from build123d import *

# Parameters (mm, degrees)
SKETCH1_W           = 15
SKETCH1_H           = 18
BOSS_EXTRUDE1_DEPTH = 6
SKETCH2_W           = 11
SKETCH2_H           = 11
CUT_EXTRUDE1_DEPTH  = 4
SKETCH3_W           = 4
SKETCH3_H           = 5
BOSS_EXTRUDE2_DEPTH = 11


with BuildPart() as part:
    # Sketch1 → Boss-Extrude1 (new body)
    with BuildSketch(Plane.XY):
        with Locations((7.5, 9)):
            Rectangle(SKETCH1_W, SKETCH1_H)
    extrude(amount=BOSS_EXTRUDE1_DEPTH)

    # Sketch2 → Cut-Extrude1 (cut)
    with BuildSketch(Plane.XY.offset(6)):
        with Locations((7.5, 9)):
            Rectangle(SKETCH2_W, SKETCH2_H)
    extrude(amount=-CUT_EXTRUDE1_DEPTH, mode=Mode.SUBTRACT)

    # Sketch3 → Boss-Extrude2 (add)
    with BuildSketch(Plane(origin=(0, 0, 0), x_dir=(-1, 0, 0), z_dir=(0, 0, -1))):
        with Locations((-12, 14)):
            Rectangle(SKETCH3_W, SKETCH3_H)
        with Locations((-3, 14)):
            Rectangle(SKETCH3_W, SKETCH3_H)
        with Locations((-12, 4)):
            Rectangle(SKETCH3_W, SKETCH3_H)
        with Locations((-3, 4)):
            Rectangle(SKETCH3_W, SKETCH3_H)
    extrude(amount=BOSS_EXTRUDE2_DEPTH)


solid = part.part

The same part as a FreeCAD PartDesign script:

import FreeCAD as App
import Part
import Sketcher
Q = App.Units.Quantity


def add_polygon(sketch, points):
    """Adds a closed chain of lines whose ends are joined by coincident constraints."""
    first, n = sketch.GeometryCount, len(points)
    for a, b in zip(points, points[1:] + points[:1]):
        sketch.addGeometry(Part.LineSegment(App.Vector(*a, 0), App.Vector(*b, 0)), False)
    for i in range(n):
        sketch.addConstraint(Sketcher.Constraint("Coincident", first + i, 2, first + (i + 1) % n, 1))

doc = App.newDocument("Part")
body = doc.addObject("PartDesign::Body", "Body")

# Sketch on XY plane
sketch1 = body.newObject("Sketcher::SketchObject", "Sketch")
sketch1.AttachmentSupport = (doc.getObject("XY_Plane"), [""])
sketch1.MapMode = "FlatFace"
add_polygon(sketch1, [(0, 18), (0, 0), (15, 0), (15, 18)])  # lines 0-3
sketch1.addConstraint(Sketcher.Constraint("Vertical", 0))
sketch1.addConstraint(Sketcher.Constraint("Horizontal", 1))
sketch1.addConstraint(Sketcher.Constraint("Vertical", 2))
sketch1.addConstraint(Sketcher.Constraint("Horizontal", 3))
sketch1.addConstraint(Sketcher.Constraint("Coincident", 0, 2, -1, 1))
sketch1.addConstraint(Sketcher.Constraint("DistanceX", 1, 1, 1, 2, Q("15 mm")))
sketch1.addConstraint(Sketcher.Constraint("DistanceY", 0, 2, 0, 1, Q("18 mm")))
pad1 = body.newObject("PartDesign::Pad", "Pad")
pad1.Profile = sketch1
pad1.Length = 6

# Sketch on XY plane
sketch2 = body.newObject("Sketcher::SketchObject", "Sketch001")
sketch2.AttachmentSupport = (doc.getObject("XY_Plane"), [""])
sketch2.MapMode = "FlatFace"
sketch2.AttachmentOffset = App.Placement(App.Vector(0, 0, 6), App.Rotation())
add_polygon(sketch2, [(2, 14), (2, 4), (13, 4), (13, 14)])  # lines 0-3
sketch2.addConstraint(Sketcher.Constraint("Vertical", 0))
sketch2.addConstraint(Sketcher.Constraint("Horizontal", 1))
sketch2.addConstraint(Sketcher.Constraint("Vertical", 2))
sketch2.addConstraint(Sketcher.Constraint("Horizontal", 3))
sketch2.addConstraint(Sketcher.Constraint("Equal", 3, 0))
sketch2.addConstraint(Sketcher.Constraint("DistanceX", 1, 1, 1, 2, Q("11 mm")))
sketch2.addConstraint(Sketcher.Constraint("DistanceX", -1, 1, 0, 2, Q("2 mm")))
sketch2.addConstraint(Sketcher.Constraint("DistanceY", -1, 1, 0, 2, Q("3.5 mm")))
pocket1 = body.newObject("PartDesign::Pocket", "Pocket")
pocket1.Profile = sketch2
pocket1.Length = 4

# Sketch on XY plane
sketch3 = body.newObject("Sketcher::SketchObject", "Sketch002")
sketch3.AttachmentSupport = (doc.getObject("XY_Plane"), [""])
sketch3.MapMode = "FlatFace"
add_polygon(sketch3, [(14, 16.5), (14, 11.5), (10, 11.5), (10, 16.5)])  # lines 0-3
add_polygon(sketch3, [(5, 16.5), (5, 11.5), (1, 11.5), (1, 16.5)])  # lines 4-7
add_polygon(sketch3, [(14, 6.5), (14, 1.5), (10, 1.5), (10, 6.5)])  # lines 8-11
add_polygon(sketch3, [(5, 6.5), (5, 1.5), (1, 1.5), (1, 6.5)])  # lines 12-15
sketch3.addConstraint(Sketcher.Constraint("Vertical", 0))
sketch3.addConstraint(Sketcher.Constraint("Horizontal", 1))
sketch3.addConstraint(Sketcher.Constraint("Vertical", 2))
sketch3.addConstraint(Sketcher.Constraint("Horizontal", 3))
sketch3.addConstraint(Sketcher.Constraint("Vertical", 4))
sketch3.addConstraint(Sketcher.Constraint("Horizontal", 5))
sketch3.addConstraint(Sketcher.Constraint("Vertical", 6))
sketch3.addConstraint(Sketcher.Constraint("Horizontal", 7))
sketch3.addConstraint(Sketcher.Constraint("Vertical", 8))
sketch3.addConstraint(Sketcher.Constraint("Horizontal", 9))
sketch3.addConstraint(Sketcher.Constraint("Vertical", 10))
sketch3.addConstraint(Sketcher.Constraint("Horizontal", 11))
sketch3.addConstraint(Sketcher.Constraint("Vertical", 12))
sketch3.addConstraint(Sketcher.Constraint("Horizontal", 13))
sketch3.addConstraint(Sketcher.Constraint("Vertical", 14))
sketch3.addConstraint(Sketcher.Constraint("Horizontal", 15))
sketch3.addConstraint(Sketcher.Constraint("Horizontal", 1, 2, 4, 2))
sketch3.addConstraint(Sketcher.Constraint("Horizontal", 3, 2, 6, 2))
sketch3.addConstraint(Sketcher.Constraint("Horizontal", 9, 2, 12, 2))
sketch3.addConstraint(Sketcher.Constraint("Horizontal", 11, 2, 14, 2))
sketch3.addConstraint(Sketcher.Constraint("Vertical", 3, 2, 8, 2))
sketch3.addConstraint(Sketcher.Constraint("Vertical", 2, 2, 9, 2))
sketch3.addConstraint(Sketcher.Constraint("Vertical", 7, 2, 12, 2))
sketch3.addConstraint(Sketcher.Constraint("Vertical", 6, 2, 13, 2))
sketch3.addConstraint(Sketcher.Constraint("Equal", 3, 5))
sketch3.addConstraint(Sketcher.Constraint("Equal", 6, 8))
sketch3.addConstraint(Sketcher.Constraint("DistanceX", 1, 2, 1, 1, Q("4 mm")))
sketch3.addConstraint(Sketcher.Constraint("DistanceY", 0, 2, 0, 1, Q("5 mm")))
sketch3.addConstraint(Sketcher.Constraint("DistanceX", -1, 1, 0, 2, Q("14 mm")))
sketch3.addConstraint(Sketcher.Constraint("DistanceX", -1, 1, 4, 2, Q("5 mm")))
sketch3.addConstraint(Sketcher.Constraint("DistanceY", 8, 2, 0, 2, Q("10 mm")))
sketch3.addConstraint(Sketcher.Constraint("DistanceY", -1, 1, 0, 2, Q("11.5 mm")))
pad2 = body.newObject("PartDesign::Pad", "Pad001")
pad2.Profile = sketch3
pad2.Length = 11
pad2.Reversed = True

doc.recompute()
